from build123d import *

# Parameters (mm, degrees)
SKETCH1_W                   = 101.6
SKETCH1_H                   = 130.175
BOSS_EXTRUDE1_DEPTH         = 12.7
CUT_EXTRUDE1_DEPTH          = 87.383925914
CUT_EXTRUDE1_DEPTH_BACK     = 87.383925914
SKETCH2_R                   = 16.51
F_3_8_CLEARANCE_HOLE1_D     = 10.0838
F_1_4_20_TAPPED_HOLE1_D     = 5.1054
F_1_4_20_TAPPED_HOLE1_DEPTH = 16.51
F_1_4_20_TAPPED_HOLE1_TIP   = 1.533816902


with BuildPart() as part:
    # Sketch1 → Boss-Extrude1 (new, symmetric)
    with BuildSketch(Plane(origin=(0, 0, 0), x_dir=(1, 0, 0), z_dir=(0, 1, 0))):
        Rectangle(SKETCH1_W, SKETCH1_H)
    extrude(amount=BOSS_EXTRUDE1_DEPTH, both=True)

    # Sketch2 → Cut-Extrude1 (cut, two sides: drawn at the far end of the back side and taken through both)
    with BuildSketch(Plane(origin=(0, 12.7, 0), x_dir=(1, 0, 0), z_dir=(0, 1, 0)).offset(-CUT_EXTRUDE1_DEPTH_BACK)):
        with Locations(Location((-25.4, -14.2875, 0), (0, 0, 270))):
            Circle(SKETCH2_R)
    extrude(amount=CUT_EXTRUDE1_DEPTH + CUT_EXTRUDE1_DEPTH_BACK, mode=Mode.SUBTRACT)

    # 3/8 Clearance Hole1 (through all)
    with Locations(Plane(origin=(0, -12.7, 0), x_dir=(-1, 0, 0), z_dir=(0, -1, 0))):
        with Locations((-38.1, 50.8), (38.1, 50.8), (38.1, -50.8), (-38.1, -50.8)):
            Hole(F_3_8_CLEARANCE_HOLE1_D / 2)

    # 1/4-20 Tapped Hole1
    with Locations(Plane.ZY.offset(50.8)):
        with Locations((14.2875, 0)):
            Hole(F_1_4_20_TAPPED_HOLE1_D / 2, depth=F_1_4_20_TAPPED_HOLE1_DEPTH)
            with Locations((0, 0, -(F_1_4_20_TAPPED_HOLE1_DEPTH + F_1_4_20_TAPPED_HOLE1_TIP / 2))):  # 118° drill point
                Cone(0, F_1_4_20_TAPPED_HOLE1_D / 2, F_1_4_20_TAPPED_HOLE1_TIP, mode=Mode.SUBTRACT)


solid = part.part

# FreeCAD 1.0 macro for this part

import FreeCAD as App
import Part
import Sketcher
Q = App.Units.Quantity

doc = App.newDocument("Part")
body = doc.addObject("PartDesign::Body", "Body")

sketch1 = body.newObject("Sketcher::SketchObject", "Sketch")
sketch1.AttachmentSupport = (doc.getObject("XZ_Plane"), [""])
sketch1.MapMode = "FlatFace"
sketch1.addGeometry(Part.LineSegment(App.Vector(-51, -65, 0), App.Vector(-51, 65, 0)), False)
sketch1.addGeometry(Part.LineSegment(App.Vector(-51, 65, 0), App.Vector(51, 65, 0)), False)
sketch1.addGeometry(Part.LineSegment(App.Vector(51, 65, 0), App.Vector(51, -65, 0)), False)
sketch1.addGeometry(Part.LineSegment(App.Vector(51, -65, 0), App.Vector(-51, -65, 0)), False)
sketch1.addConstraint(Sketcher.Constraint("Coincident", 0, 2, 1, 1))
sketch1.addConstraint(Sketcher.Constraint("Coincident", 1, 2, 2, 1))
sketch1.addConstraint(Sketcher.Constraint("Coincident", 2, 2, 3, 1))
sketch1.addConstraint(Sketcher.Constraint("Coincident", 3, 2, 0, 1))
sketch1.addConstraint(Sketcher.Constraint("Vertical", 0))
sketch1.addConstraint(Sketcher.Constraint("Horizontal", 1))
sketch1.addConstraint(Sketcher.Constraint("Vertical", 2))
sketch1.addConstraint(Sketcher.Constraint("Horizontal", 3))
sketch1.addConstraint(Sketcher.Constraint("Symmetric", 0, 2, 2, 2, -1, 1))
sketch1.addConstraint(Sketcher.Constraint("DistanceX", 1, 1, 1, 2, Q("4 in")))
sketch1.addConstraint(Sketcher.Constraint("DistanceY", 0, 1, 0, 2, Q("5.125 in")))
pad1 = body.newObject("PartDesign::Pad", "Pad")
pad1.Profile = sketch1
pad1.Length = Q("1 in")
pad1.Midplane = True

sketch2 = body.newObject("Sketcher::SketchObject", "Sketch001")
sketch2.AttachmentSupport = (doc.getObject("XZ_Plane"), [""])
sketch2.MapMode = "FlatFace"
sketch2.AttachmentOffset = App.Placement(App.Vector(0, 0, -0.5 * 25.4), App.Rotation())
sketch2.addGeometry(Part.Circle(App.Vector(-25, 14, 0), App.Vector(0, 0, 1), 17), False)
sketch2.addConstraint(Sketcher.Constraint("Diameter", 0, Q("1.3 in")))
sketch2.addConstraint(Sketcher.Constraint("DistanceX", 0, 3, -1, 1, Q("1 in")))
sketch2.addConstraint(Sketcher.Constraint("DistanceY", -1, 1, 0, 3, Q("0.5625 in")))
pocket1 = body.newObject("PartDesign::Pocket", "Pocket")
pocket1.Profile = sketch2
pocket1.Type = "ThroughAll"
pocket1.Midplane = True

sketch3 = body.newObject("Sketcher::SketchObject", "Sketch002")
sketch3.AttachmentSupport = (doc.getObject("XZ_Plane"), [""])
sketch3.MapMode = "FlatFace"
sketch3.AttachmentOffset = App.Placement(App.Vector(0, 0, 0.5 * 25.4), App.Rotation())
sketch3.addGeometry(Part.Circle(App.Vector(38, -51, 0), App.Vector(0, 0, 1), 5), False)
sketch3.addGeometry(Part.Circle(App.Vector(-38, -51, 0), App.Vector(0, 0, 1), 5), False)
sketch3.addGeometry(Part.Circle(App.Vector(-38, 51, 0), App.Vector(0, 0, 1), 5), False)
sketch3.addGeometry(Part.Circle(App.Vector(38, 51, 0), App.Vector(0, 0, 1), 5), False)
sketch3.addConstraint(Sketcher.Constraint("Equal", 0, 1))
sketch3.addConstraint(Sketcher.Constraint("Equal", 1, 2))
sketch3.addConstraint(Sketcher.Constraint("Equal", 2, 3))
sketch3.addConstraint(Sketcher.Constraint("Symmetric", 0, 3, 2, 3, -1, 1))
sketch3.addConstraint(Sketcher.Constraint("Symmetric", 1, 3, 3, 3, -1, 1))
sketch3.addConstraint(Sketcher.Constraint("Symmetric", 0, 3, 1, 3, -2))
sketch3.addConstraint(Sketcher.Constraint("Diameter", 0, Q("0.397 in")))
sketch3.addConstraint(Sketcher.Constraint("DistanceY", 0, 3, -1, 1, Q("2 in")))
sketch3.addConstraint(Sketcher.Constraint("DistanceX", 1, 3, 0, 3, Q("3 in")))
doc.recompute()
hole = body.newObject("PartDesign::Hole", "Hole")
hole.Profile = sketch3
hole.ThreadType = "None"
hole.Diameter = Q("0.397 in")
hole.DepthType = "ThroughAll"

sketch4 = body.newObject("Sketcher::SketchObject", "Sketch003")
sketch4.AttachmentSupport = (doc.getObject("YZ_Plane"), [""])
sketch4.MapMode = "FlatFace"
sketch4.AttachmentOffset = App.Placement(App.Vector(0, 0, -2 * 25.4), App.Rotation())
sketch4.addGeometry(Part.Circle(App.Vector(0, 14.3, 0), App.Vector(0, 0, 1), 2.6), False)
sketch4.addConstraint(Sketcher.Constraint("PointOnObject", 0, 3, -2))
sketch4.addConstraint(Sketcher.Constraint("Diameter", 0, Q("0.201 in")))
sketch4.addConstraint(Sketcher.Constraint("DistanceY", -1, 1, 0, 3, Q("0.5625 in")))
doc.recompute()
hole2 = body.newObject("PartDesign::Hole", "Hole001")
hole2.Profile = sketch4
hole2.ThreadType = "None"
hole2.Diameter = Q("0.201 in")
hole2.DepthType = "Dimension"
hole2.Depth = Q("0.65 in")
hole2.DrillPoint = "Angled"
hole2.DrillPointAngle = 118
hole2.Reversed = True

doc.recompute()
